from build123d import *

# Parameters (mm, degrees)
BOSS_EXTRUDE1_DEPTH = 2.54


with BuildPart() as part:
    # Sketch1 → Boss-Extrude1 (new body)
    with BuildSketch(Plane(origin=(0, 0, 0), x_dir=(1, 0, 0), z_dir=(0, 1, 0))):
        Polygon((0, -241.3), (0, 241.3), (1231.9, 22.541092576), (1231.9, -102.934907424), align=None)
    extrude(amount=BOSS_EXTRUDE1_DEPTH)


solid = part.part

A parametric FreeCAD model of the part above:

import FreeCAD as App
import Part
import Sketcher

V = App.Vector
Q = App.Units.Quantity


def add_polygon(sketch, points):
    """Adds a closed chain of lines whose ends are joined by coincident constraints."""
    first, n = sketch.GeometryCount, len(points)
    for a, b in zip(points, points[1:] + points[:1]):
        sketch.addGeometry(Part.LineSegment(App.Vector(*a, 0), App.Vector(*b, 0)), False)
    for i in range(n):
        sketch.addConstraint(Sketcher.Constraint("Coincident", first + i, 2, first + (i + 1) % n, 1))

doc = App.newDocument("Part")
params = doc.addObject("Spreadsheet::Sheet", "Params")
for row, (alias, value) in enumerate([
    ("sketch1_height", "19 in"),
    ("sketch1_height2", "4.94 in"),
    ("pad1_length", "0.1 in"),
], start=1):
    params.set(f"A{row}", alias)
    params.set(f"B{row}", "=" + value)
    params.setAlias(f"B{row}", alias)

body = doc.addObject("PartDesign::Body", "Body")

# Sketch on XZ plane
sketch1 = body.newObject("Sketcher::SketchObject", "Sketch")
sketch1.AttachmentSupport = (doc.getObject("XZ_Plane"), [""])
sketch1.MapMode = "FlatFace"
add_polygon(sketch1, [(0, -241), (0, 241), (1232, 103), (1232, -23)])  # lines 0-3
sketch1.addConstraint([
    Sketcher.Constraint("Vertical", 0),
    Sketcher.Constraint("Vertical", 2),
    Sketcher.Constraint("Symmetric", 0, 2, 3, 2, -1, 1),
    Sketcher.Constraint("DistanceY", 0, 1, 0, 2, Q("19 in")),
    Sketcher.Constraint("DistanceY", 2, 2, 2, 1, Q("4.94 in")),
    Sketcher.Constraint("DistanceX", -1, 1, 1, 2, Q("48.5 in")),
    Sketcher.Constraint("Distance", 1, 1239.646122),
])
sketch1.setExpression("Constraints[7]", "Params.sketch1_height")
sketch1.setExpression("Constraints[8]", "Params.sketch1_height2")
pad1 = body.newObject("PartDesign::Pad", "Pad")
pad1.Profile = sketch1
pad1.setExpression("Length", "Params.pad1_length")
pad1.Reversed = True

doc.recompute()
